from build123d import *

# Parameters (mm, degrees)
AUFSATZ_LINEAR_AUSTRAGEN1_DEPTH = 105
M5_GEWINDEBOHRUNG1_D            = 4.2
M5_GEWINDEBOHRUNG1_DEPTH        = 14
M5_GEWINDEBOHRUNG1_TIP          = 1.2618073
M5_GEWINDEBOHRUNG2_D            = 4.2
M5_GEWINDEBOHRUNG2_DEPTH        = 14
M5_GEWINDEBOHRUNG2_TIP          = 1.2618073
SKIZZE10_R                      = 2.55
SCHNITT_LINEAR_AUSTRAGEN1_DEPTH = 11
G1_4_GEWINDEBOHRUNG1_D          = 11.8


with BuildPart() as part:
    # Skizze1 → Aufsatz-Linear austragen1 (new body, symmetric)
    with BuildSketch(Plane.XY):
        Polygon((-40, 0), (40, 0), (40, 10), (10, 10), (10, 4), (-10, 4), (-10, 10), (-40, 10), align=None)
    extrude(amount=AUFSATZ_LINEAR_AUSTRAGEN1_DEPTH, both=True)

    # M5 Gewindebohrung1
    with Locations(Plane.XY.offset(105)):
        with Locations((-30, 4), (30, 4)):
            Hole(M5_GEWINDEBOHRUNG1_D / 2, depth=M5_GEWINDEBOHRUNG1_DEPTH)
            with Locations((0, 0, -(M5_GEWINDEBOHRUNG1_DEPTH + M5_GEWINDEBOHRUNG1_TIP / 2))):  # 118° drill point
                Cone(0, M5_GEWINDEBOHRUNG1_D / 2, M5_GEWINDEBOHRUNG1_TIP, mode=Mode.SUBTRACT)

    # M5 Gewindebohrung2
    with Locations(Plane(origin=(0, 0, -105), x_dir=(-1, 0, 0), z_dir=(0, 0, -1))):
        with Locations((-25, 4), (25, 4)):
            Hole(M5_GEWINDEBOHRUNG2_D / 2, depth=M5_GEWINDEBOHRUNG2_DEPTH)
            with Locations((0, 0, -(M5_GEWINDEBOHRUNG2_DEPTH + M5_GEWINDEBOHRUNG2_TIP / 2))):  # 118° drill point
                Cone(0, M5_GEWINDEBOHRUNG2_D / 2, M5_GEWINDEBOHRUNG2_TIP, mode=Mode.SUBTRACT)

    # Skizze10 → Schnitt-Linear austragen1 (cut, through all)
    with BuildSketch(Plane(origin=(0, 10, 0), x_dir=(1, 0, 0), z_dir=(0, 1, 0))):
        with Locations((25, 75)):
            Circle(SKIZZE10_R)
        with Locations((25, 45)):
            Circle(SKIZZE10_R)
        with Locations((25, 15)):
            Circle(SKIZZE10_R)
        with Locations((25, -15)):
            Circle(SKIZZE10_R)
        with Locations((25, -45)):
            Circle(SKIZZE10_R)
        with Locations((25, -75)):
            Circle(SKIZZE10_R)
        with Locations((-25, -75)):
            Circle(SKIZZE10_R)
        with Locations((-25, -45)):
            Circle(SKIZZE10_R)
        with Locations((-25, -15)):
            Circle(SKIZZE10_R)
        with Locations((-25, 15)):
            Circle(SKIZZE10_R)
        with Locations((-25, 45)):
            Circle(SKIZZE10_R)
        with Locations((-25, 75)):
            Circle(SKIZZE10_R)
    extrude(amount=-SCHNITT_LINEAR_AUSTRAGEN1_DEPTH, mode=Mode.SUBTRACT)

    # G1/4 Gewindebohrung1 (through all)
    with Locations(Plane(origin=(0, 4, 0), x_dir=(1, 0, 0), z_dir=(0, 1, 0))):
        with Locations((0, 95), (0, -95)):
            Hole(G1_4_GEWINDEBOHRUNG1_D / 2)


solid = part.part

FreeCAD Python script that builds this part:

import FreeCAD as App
import Part
import Sketcher

V = App.Vector
Q = App.Units.Quantity


def add_polygon(sketch, points):
    """Adds a closed chain of lines whose ends are joined by coincident constraints."""
    first, n = sketch.GeometryCount, len(points)
    for a, b in zip(points, points[1:] + points[:1]):
        sketch.addGeometry(Part.LineSegment(App.Vector(*a, 0), App.Vector(*b, 0)), False)
    for i in range(n):
        sketch.addConstraint(Sketcher.Constraint("Coincident", first + i, 2, first + (i + 1) % n, 1))

doc = App.newDocument("Part")
body = doc.addObject("PartDesign::Body", "Body")

# Sketch on XY plane
sketch1 = doc.addObject("Sketcher::SketchObject", "Sketch")
body.addObject(sketch1)
sketch1.AttachmentSupport = (doc.XY_Plane, [""])
sketch1.MapMode = "FlatFace"
add_polygon(sketch1, [(-40, 0), (40, 0), (40, 10), (10, 10), (10, 4), (-10, 4), (-10, 10), (-40, 10)])  # lines 0-7
sketch1.addConstraint(Sketcher.Constraint("Horizontal", 0))
sketch1.addConstraint(Sketcher.Constraint("Vertical", 1))
sketch1.addConstraint(Sketcher.Constraint("Horizontal", 2))
sketch1.addConstraint(Sketcher.Constraint("Vertical", 3))
sketch1.addConstraint(Sketcher.Constraint("Horizontal", 4))
sketch1.addConstraint(Sketcher.Constraint("Vertical", 5))
sketch1.addConstraint(Sketcher.Constraint("Horizontal", 6))
sketch1.addConstraint(Sketcher.Constraint("Vertical", 7))
sketch1.addConstraint(Sketcher.Constraint("Symmetric", 0, 2, 7, 2, -1, 1))
sketch1.addConstraint(Sketcher.Constraint("Symmetric", 2, 2, 5, 2, -2))
sketch1.addConstraint(Sketcher.Constraint("DistanceX", 0, 1, 0, 2, Q("80 mm")))
sketch1.addConstraint(Sketcher.Constraint("DistanceX", 2, 2, 2, 1, Q("30 mm")))
sketch1.addConstraint(Sketcher.Constraint("DistanceY", 1, 1, 1, 2, Q("10 mm")))
sketch1.addConstraint(Sketcher.Constraint("DistanceY", 3, 2, 3, 1, Q("6 mm")))
pad1 = doc.addObject("PartDesign::Pad", "Pad")
body.addObject(pad1)
pad1.Profile = sketch1
pad1.Length = 210
pad1.Midplane = True

# Sketch on XY plane
sketch2 = doc.addObject("Sketcher::SketchObject", "Sketch001")
body.addObject(sketch2)
sketch2.AttachmentSupport = (doc.XY_Plane, [""])
sketch2.MapMode = "FlatFace"
sketch2.AttachmentOffset = App.Placement(V(0, 0, 105), App.Rotation())
sketch2.addGeometry(Part.Circle(V(-30, 4, 0), V(0, 0, 1), 2.1), False)
sketch2.addGeometry(Part.Circle(V(30, 4, 0), V(0, 0, 1), 2.1), False)
sketch2.addConstraint(Sketcher.Constraint("Equal", 0, 1))
sketch2.addConstraint(Sketcher.Constraint("Symmetric", 0, 3, 1, 3, -2))
sketch2.addConstraint(Sketcher.Constraint("Diameter", 0, Q("4.2 mm")))
sketch2.addConstraint(Sketcher.Constraint("DistanceX", 0, 3, -1, 1, Q("30 mm")))
sketch2.addConstraint(Sketcher.Constraint("DistanceY", -1, 1, 0, 3, Q("4 mm")))
doc.recompute()
hole = doc.addObject("PartDesign::Hole", "Hole")
body.addObject(hole)
hole.Profile = sketch2
hole.ThreadType = "None"
hole.Diameter = 4.2
hole.DepthType = "Dimension"
hole.Depth = 14
hole.DrillPoint = "Angled"
hole.DrillPointAngle = 118

# Sketch on XY plane
sketch3 = doc.addObject("Sketcher::SketchObject", "Sketch002")
body.addObject(sketch3)
sketch3.AttachmentSupport = (doc.XY_Plane, [""])
sketch3.MapMode = "FlatFace"
sketch3.AttachmentOffset = App.Placement(V(0, 0, -105), App.Rotation())
sketch3.addGeometry(Part.Circle(V(25, 4, 0), V(0, 0, 1), 2.1), False)
sketch3.addGeometry(Part.Circle(V(-25, 4, 0), V(0, 0, 1), 2.1), False)
sketch3.addConstraint(Sketcher.Constraint("Equal", 0, 1))
sketch3.addConstraint(Sketcher.Constraint("Symmetric", 0, 3, 1, 3, -2))
sketch3.addConstraint(Sketcher.Constraint("Diameter", 0, Q("4.2 mm")))
sketch3.addConstraint(Sketcher.Constraint("DistanceX", -1, 1, 0, 3, Q("25 mm")))
sketch3.addConstraint(Sketcher.Constraint("DistanceY", -1, 1, 0, 3, Q("4 mm")))
doc.recompute()
hole2 = doc.addObject("PartDesign::Hole", "Hole001")
body.addObject(hole2)
hole2.Profile = sketch3
hole2.ThreadType = "None"
hole2.Diameter = 4.2
hole2.DepthType = "Dimension"
hole2.Depth = 14
hole2.DrillPoint = "Angled"
hole2.DrillPointAngle = 118
hole2.Reversed = True

# Sketch on XZ plane
sketch4 = doc.addObject("Sketcher::SketchObject", "Sketch003")
body.addObject(sketch4)
sketch4.AttachmentSupport = (doc.XZ_Plane, [""])
sketch4.MapMode = "FlatFace"
sketch4.AttachmentOffset = App.Placement(V(0, 0, -10), App.Rotation())
sketch4.addGeometry(Part.Circle(V(25, -75, 0), V(0, 0, 1), 2.5), False)
sketch4.addGeometry(Part.Circle(V(25, -45, 0), V(0, 0, 1), 2.5), False)
sketch4.addGeometry(Part.Circle(V(25, -15, 0), V(0, 0, 1), 2.5), False)
sketch4.addGeometry(Part.Circle(V(25, 15, 0), V(0, 0, 1), 2.5), False)
sketch4.addGeometry(Part.Circle(V(25, 45, 0), V(0, 0, 1), 2.5), False)
sketch4.addGeometry(Part.Circle(V(25, 75, 0), V(0, 0, 1), 2.5), False)
sketch4.addGeometry(Part.Circle(V(-25, 75, 0), V(0, 0, 1), 2.5), False)
sketch4.addGeometry(Part.Circle(V(-25, 45, 0), V(0, 0, 1), 2.5), False)
sketch4.addGeometry(Part.Circle(V(-25, 15, 0), V(0, 0, 1), 2.5), False)
sketch4.addGeometry(Part.Circle(V(-25, -15, 0), V(0, 0, 1), 2.5), False)
sketch4.addGeometry(Part.Circle(V(-25, -45, 0), V(0, 0, 1), 2.5), False)
sketch4.addGeometry(Part.Circle(V(-25, -75, 0), V(0, 0, 1), 2.5), False)
sketch4.addConstraint(Sketcher.Constraint("Equal", 0, 1))
sketch4.addConstraint(Sketcher.Constraint("Equal", 1, 2))
sketch4.addConstraint(Sketcher.Constraint("Equal", 2, 3))
sketch4.addConstraint(Sketcher.Constraint("Equal", 3, 4))
sketch4.addConstraint(Sketcher.Constraint("Equal", 4, 5))
sketch4.addConstraint(Sketcher.Constraint("Equal", 5, 6))
sketch4.addConstraint(Sketcher.Constraint("Equal", 6, 7))
sketch4.addConstraint(Sketcher.Constraint("Equal", 7, 8))
sketch4.addConstraint(Sketcher.Constraint("Equal", 8, 9))
sketch4.addConstraint(Sketcher.Constraint("Equal", 9, 10))
sketch4.addConstraint(Sketcher.Constraint("Equal", 10, 11))
sketch4.addConstraint(Sketcher.Constraint("Symmetric", 0, 3, 6, 3, -1, 1))
sketch4.addConstraint(Sketcher.Constraint("Symmetric", 1, 3, 7, 3, -1, 1))
sketch4.addConstraint(Sketcher.Constraint("Symmetric", 2, 3, 8, 3, -1, 1))
sketch4.addConstraint(Sketcher.Constraint("Symmetric", 3, 3, 9, 3, -1, 1))
sketch4.addConstraint(Sketcher.Constraint("Symmetric", 4, 3, 10, 3, -1, 1))
sketch4.addConstraint(Sketcher.Constraint("Symmetric", 5, 3, 11, 3, -1, 1))
sketch4.addConstraint(Sketcher.Constraint("Symmetric", 5, 3, 6, 3, -2))
sketch4.addConstraint(Sketcher.Constraint("Symmetric", 4, 3, 7, 3, -2))
sketch4.addConstraint(Sketcher.Constraint("Symmetric", 3, 3, 8, 3, -2))
sketch4.addConstraint(Sketcher.Constraint("Vertical", 0, 3, 1, 3))
sketch4.addConstraint(Sketcher.Constraint("Vertical", 1, 3, 2, 3))
sketch4.addConstraint(Sketcher.Constraint("Diameter", 0, Q("5.1 mm")))
sketch4.addConstraint(Sketcher.Constraint("DistanceX", -1, 1, 0, 3, Q("25 mm")))
sketch4.addConstraint(Sketcher.Constraint("DistanceY", 0, 3, -1, 1, Q("75 mm")))
sketch4.addConstraint(Sketcher.Constraint("DistanceY", 1, 3, -1, 1, Q("45 mm")))
sketch4.addConstraint(Sketcher.Constraint("DistanceY", 2, 3, -1, 1, Q("15 mm")))
pocket1 = doc.addObject("PartDesign::Pocket", "Pocket")
body.addObject(pocket1)
pocket1.Profile = sketch4
pocket1.Type = "ThroughAll"
pocket1.Reversed = True

# Sketch on XZ plane
sketch5 = doc.addObject("Sketcher::SketchObject", "Sketch004")
body.addObject(sketch5)
sketch5.AttachmentSupport = (doc.XZ_Plane, [""])
sketch5.MapMode = "FlatFace"
sketch5.AttachmentOffset = App.Placement(V(0, 0, -4), App.Rotation())
sketch5.addGeometry(Part.Circle(V(0, -95, 0), V(0, 0, 1), 6), False)
sketch5.addGeometry(Part.Circle(V(0, 95, 0), V(0, 0, 1), 6), False)
sketch5.addConstraint(Sketcher.Constraint("Equal", 0, 1))
sketch5.addConstraint(Sketcher.Constraint("Symmetric", 0, 3, 1, 3, -1, 1))
sketch5.addConstraint(Sketcher.Constraint("PointOnObject", 0, 3, -2))
sketch5.addConstraint(Sketcher.Constraint("Diameter", 0, Q("11.8 mm")))
sketch5.addConstraint(Sketcher.Constraint("DistanceY", 0, 3, -1, 1, Q("95 mm")))
doc.recompute()
hole3 = doc.addObject("PartDesign::Hole", "Hole002")
body.addObject(hole3)
hole3.Profile = sketch5
hole3.ThreadType = "None"
hole3.Diameter = 11.8
hole3.DepthType = "ThroughAll"
hole3.Reversed = True

doc.recompute()
